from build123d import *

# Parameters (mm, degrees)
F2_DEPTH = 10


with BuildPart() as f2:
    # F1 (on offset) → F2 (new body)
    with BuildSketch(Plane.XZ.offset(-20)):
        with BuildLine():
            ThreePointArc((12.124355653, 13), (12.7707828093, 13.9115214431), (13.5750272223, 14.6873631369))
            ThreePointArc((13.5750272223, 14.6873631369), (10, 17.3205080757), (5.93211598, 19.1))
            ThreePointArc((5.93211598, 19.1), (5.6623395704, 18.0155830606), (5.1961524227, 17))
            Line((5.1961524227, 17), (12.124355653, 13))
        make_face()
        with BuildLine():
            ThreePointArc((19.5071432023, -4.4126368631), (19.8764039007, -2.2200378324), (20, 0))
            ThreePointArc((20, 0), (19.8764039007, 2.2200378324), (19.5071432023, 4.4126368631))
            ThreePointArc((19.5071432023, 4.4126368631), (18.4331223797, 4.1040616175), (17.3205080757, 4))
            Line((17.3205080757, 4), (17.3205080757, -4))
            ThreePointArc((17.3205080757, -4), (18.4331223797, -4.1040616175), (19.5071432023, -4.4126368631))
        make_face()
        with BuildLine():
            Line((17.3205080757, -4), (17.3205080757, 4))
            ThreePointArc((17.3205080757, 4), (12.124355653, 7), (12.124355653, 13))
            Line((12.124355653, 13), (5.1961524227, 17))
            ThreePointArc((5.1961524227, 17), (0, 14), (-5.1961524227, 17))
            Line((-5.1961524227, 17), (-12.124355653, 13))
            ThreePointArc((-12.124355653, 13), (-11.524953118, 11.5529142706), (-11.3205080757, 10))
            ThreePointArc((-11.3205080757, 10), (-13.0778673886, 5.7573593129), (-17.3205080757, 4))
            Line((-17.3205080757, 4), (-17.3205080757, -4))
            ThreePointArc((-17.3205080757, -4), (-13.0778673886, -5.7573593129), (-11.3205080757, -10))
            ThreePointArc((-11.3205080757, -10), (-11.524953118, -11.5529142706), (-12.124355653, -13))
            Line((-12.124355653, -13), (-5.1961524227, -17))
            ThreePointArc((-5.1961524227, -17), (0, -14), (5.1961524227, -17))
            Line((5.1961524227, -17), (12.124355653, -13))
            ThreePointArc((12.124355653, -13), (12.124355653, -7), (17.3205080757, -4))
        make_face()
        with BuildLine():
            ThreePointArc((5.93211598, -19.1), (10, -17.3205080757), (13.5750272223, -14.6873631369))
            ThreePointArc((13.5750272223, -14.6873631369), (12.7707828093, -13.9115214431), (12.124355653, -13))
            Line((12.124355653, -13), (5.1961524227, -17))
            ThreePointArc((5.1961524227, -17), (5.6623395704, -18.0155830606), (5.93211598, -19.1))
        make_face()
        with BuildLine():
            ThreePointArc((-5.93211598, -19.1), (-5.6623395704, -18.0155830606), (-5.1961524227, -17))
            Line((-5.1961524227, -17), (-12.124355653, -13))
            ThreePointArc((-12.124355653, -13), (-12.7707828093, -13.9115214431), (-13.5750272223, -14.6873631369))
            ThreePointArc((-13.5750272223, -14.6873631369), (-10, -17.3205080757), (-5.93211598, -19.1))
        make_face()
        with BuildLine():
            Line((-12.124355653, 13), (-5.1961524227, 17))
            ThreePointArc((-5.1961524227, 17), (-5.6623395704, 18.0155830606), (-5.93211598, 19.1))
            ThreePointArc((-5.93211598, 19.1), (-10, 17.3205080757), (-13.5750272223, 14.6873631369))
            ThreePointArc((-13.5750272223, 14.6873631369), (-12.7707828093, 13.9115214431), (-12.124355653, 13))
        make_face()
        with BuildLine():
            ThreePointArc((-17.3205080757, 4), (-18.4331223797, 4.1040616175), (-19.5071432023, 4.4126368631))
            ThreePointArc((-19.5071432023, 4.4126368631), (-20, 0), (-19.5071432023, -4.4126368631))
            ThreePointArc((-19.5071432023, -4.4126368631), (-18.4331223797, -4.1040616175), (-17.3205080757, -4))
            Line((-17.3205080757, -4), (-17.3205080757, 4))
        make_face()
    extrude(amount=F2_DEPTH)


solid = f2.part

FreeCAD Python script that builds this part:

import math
import FreeCAD as App
import Part
import Sketcher
from FreeCAD import Vector

doc = App.newDocument("Part")
body = doc.addObject("PartDesign::Body", "Body")

sketch1 = body.newObject("Sketcher::SketchObject", "Sketch")
sketch1.AttachmentSupport = (doc.getObject("XZ_Plane"), [""])
sketch1.MapMode = "FlatFace"
sketch1.AttachmentOffset = App.Placement(Vector(0, 0, -20), App.Rotation())
sketch1.addGeometry([
    Part.ArcOfCircle(Part.Circle(Vector(17.3, 10, 0), Vector(0, 0, 1), 6), math.radians(129), math.radians(150)),
    Part.ArcOfCircle(Part.Circle(Vector(0, 0, 0), Vector(0, 0, 1), 20), math.radians(47), math.radians(73)),
    Part.ArcOfCircle(Part.Circle(Vector(0, 20, 0), Vector(0, 0, 1), 6), math.radians(-30), math.radians(-9)),
    Part.ArcOfCircle(Part.Circle(Vector(0, 20, 0), Vector(0, 0, 1), 6), math.radians(-150), math.radians(-30)),
    Part.ArcOfCircle(Part.Circle(Vector(0, 20, 0), Vector(0, 0, 1), 6), math.radians(-171), math.radians(-150)),
    Part.ArcOfCircle(Part.Circle(Vector(0, 0, 0), Vector(0, 0, 1), 20), math.radians(107), math.radians(133)),
    Part.ArcOfCircle(Part.Circle(Vector(-17.3, 10, 0), Vector(0, 0, 1), 6), math.radians(30), math.radians(51)),
    Part.ArcOfCircle(Part.Circle(Vector(-17.3, 10, 0), Vector(0, 0, 1), 6), math.radians(0), math.radians(30)),
    Part.ArcOfCircle(Part.Circle(Vector(-17.3, 10, 0), Vector(0, 0, 1), 6), math.radians(-90), math.radians(0)),
    Part.ArcOfCircle(Part.Circle(Vector(-17.3, 10, 0), Vector(0, 0, 1), 6), math.radians(-111), math.radians(-90)),
    Part.ArcOfCircle(Part.Circle(Vector(0, 0, 0), Vector(0, 0, 1), 20), math.radians(167), math.radians(193)),
    Part.ArcOfCircle(Part.Circle(Vector(-17.3, -10, 0), Vector(0, 0, 1), 6), math.radians(90), math.radians(111)),
    Part.ArcOfCircle(Part.Circle(Vector(-17.3, -10, 0), Vector(0, 0, 1), 6), math.radians(0), math.radians(90)),
    Part.ArcOfCircle(Part.Circle(Vector(-17.3, -10, 0), Vector(0, 0, 1), 6), math.radians(-30), math.radians(0)),
    Part.ArcOfCircle(Part.Circle(Vector(-17.3, -10, 0), Vector(0, 0, 1), 6), math.radians(-51), math.radians(-30)),
    Part.ArcOfCircle(Part.Circle(Vector(0, 0, 0), Vector(0, 0, 1), 20), math.radians(-133), math.radians(-107)),
    Part.ArcOfCircle(Part.Circle(Vector(0, -20, 0), Vector(0, 0, 1), 6), math.radians(150), math.radians(171)),
    Part.ArcOfCircle(Part.Circle(Vector(0, -20, 0), Vector(0, 0, 1), 6), math.radians(30), math.radians(150)),
    Part.ArcOfCircle(Part.Circle(Vector(0, -20, 0), Vector(0, 0, 1), 6), math.radians(9), math.radians(30)),
    Part.ArcOfCircle(Part.Circle(Vector(0, 0, 0), Vector(0, 0, 1), 20), math.radians(-73), math.radians(-47)),
    Part.ArcOfCircle(Part.Circle(Vector(17.3, -10, 0), Vector(0, 0, 1), 6), math.radians(-150), math.radians(-129)),
    Part.ArcOfCircle(Part.Circle(Vector(17.3, -10, 0), Vector(0, 0, 1), 6), math.radians(90), math.radians(210)),
    Part.ArcOfCircle(Part.Circle(Vector(17.3, -10, 0), Vector(0, 0, 1), 6), math.radians(69), math.radians(90)),
    Part.ArcOfCircle(Part.Circle(Vector(0, 0, 0), Vector(0, 0, 1), 20), math.radians(-12.75), math.radians(0)),
    Part.ArcOfCircle(Part.Circle(Vector(0, 0, 0), Vector(0, 0, 1), 20), math.radians(0), math.radians(12.75)),
    Part.ArcOfCircle(Part.Circle(Vector(17.3, 10, 0), Vector(0, 0, 1), 6), math.radians(-90), math.radians(-69)),
    Part.ArcOfCircle(Part.Circle(Vector(17.3, 10, 0), Vector(0, 0, 1), 6), math.radians(150), math.radians(270)),
], False)
sketch1.addConstraint([
    Sketcher.Constraint("Coincident", 0, 1, 1, 1),
    Sketcher.Constraint("Coincident", 1, 2, 2, 2),
    Sketcher.Constraint("Tangent", 2, 1, 3, 2),
    Sketcher.Constraint("Tangent", 3, 1, 4, 2),
    Sketcher.Constraint("Coincident", 4, 1, 5, 1),
    Sketcher.Constraint("Coincident", 5, 2, 6, 2),
    Sketcher.Constraint("Tangent", 6, 1, 7, 2),
    Sketcher.Constraint("Tangent", 7, 1, 8, 2),
    Sketcher.Constraint("Tangent", 8, 1, 9, 2),
    Sketcher.Constraint("Coincident", 9, 1, 10, 1),
    Sketcher.Constraint("Coincident", 10, 2, 11, 2),
    Sketcher.Constraint("Tangent", 11, 1, 12, 2),
    Sketcher.Constraint("Tangent", 12, 1, 13, 2),
    Sketcher.Constraint("Tangent", 13, 1, 14, 2),
    Sketcher.Constraint("Coincident", 14, 1, 15, 1),
    Sketcher.Constraint("Coincident", 15, 2, 16, 2),
    Sketcher.Constraint("Tangent", 16, 1, 17, 2),
    Sketcher.Constraint("Tangent", 17, 1, 18, 2),
    Sketcher.Constraint("Coincident", 18, 1, 19, 1),
    Sketcher.Constraint("Coincident", 19, 2, 20, 2),
    Sketcher.Constraint("Tangent", 20, 1, 21, 2),
    Sketcher.Constraint("Tangent", 21, 1, 22, 2),
    Sketcher.Constraint("Coincident", 22, 1, 23, 1),
    Sketcher.Constraint("Tangent", 23, 2, 24, 1),
    Sketcher.Constraint("Coincident", 24, 2, 25, 2),
    Sketcher.Constraint("Tangent", 25, 1, 26, 2),
    Sketcher.Constraint("Tangent", 26, 1, 0, 2),
    Sketcher.Constraint("Coincident", 1, 3, -1, 1),
    Sketcher.Constraint("Coincident", 5, 3, -1, 1),
    Sketcher.Constraint("Coincident", 10, 3, -1, 1),
    Sketcher.Constraint("Coincident", 15, 3, -1, 1),
    Sketcher.Constraint("Coincident", 19, 3, -1, 1),
    Sketcher.Constraint("Coincident", 23, 3, -1, 1),
    Sketcher.Constraint("Coincident", 4, 3, 2, 3),
    Sketcher.Constraint("Coincident", 8, 3, 6, 3),
    Sketcher.Constraint("Coincident", 13, 3, 11, 3),
    Sketcher.Constraint("Coincident", 18, 3, 16, 3),
    Sketcher.Constraint("Coincident", 22, 3, 20, 3),
    Sketcher.Constraint("Coincident", 25, 3, 0, 3),
    Sketcher.Constraint("Equal", 0, 2),
    Sketcher.Constraint("Equal", 1, 5),
    Sketcher.Constraint("Equal", 4, 6),
    Sketcher.Constraint("Equal", 8, 9),
    Sketcher.Constraint("Equal", 5, 10),
    Sketcher.Constraint("Equal", 9, 11),
    Sketcher.Constraint("Equal", 13, 14),
    Sketcher.Constraint("Equal", 10, 15),
    Sketcher.Constraint("Equal", 14, 16),
    Sketcher.Constraint("Equal", 15, 19),
    Sketcher.Constraint("Equal", 18, 20),
    Sketcher.Constraint("Equal", 19, 23),
    Sketcher.Constraint("Equal", 23, 24),
    Sketcher.Constraint("Symmetric", 0, 3, 11, 3, -1, 1),
    Sketcher.Constraint("Symmetric", 2, 3, 16, 3, -1, 1),
    Sketcher.Constraint("Symmetric", 6, 3, 20, 3, -1, 1),
    Sketcher.Constraint("Symmetric", 0, 3, 6, 3, -2),
    Sketcher.Constraint("Symmetric", 2, 1, 3, 1, -2),
    Sketcher.Constraint("PointOnObject", 23, 2, -1),
    Sketcher.Constraint("Horizontal", 26, 3, 7, 1),
    Sketcher.Constraint("Horizontal", 22, 3, 12, 1),
    Sketcher.Constraint("Horizontal", 16, 1, 17, 1),
    Sketcher.Constraint("Horizontal", 13, 1, 20, 1),
    Sketcher.Constraint("Horizontal", 6, 1, 26, 1),
    Sketcher.Constraint("Vertical", 14, 3, 8, 1),
    Sketcher.Constraint("Vertical", 8, 1, 11, 1),
    Sketcher.Constraint("Vertical", 6, 1, 13, 1),
    Sketcher.Constraint("Vertical", 3, 1, 16, 1),
    Sketcher.Constraint("Vertical", 26, 3, 21, 1),
    Sketcher.Constraint("Vertical", 21, 1, 25, 1),
    Sketcher.Constraint("Radius", 0, 6.0),
    Sketcher.Constraint("Radius", 1, 20.0),
    Sketcher.Constraint("DistanceY", -1, 1, 0, 3, 10.0),
    Sketcher.Constraint("DistanceY", -1, 1, 2, 3, 20.0),
    Sketcher.Constraint("DistanceY", -1, 1, 2, 1, 17.0),
    Sketcher.Constraint("DistanceY", -1, 1, 6, 1, 13.0),
    Sketcher.Constraint("DistanceX", -1, 1, 0, 3, 17.320508),
])
pad1 = body.newObject("PartDesign::Pad", "Pad")
pad1.Profile = sketch1
pad1.Length = 10

doc.recompute()
